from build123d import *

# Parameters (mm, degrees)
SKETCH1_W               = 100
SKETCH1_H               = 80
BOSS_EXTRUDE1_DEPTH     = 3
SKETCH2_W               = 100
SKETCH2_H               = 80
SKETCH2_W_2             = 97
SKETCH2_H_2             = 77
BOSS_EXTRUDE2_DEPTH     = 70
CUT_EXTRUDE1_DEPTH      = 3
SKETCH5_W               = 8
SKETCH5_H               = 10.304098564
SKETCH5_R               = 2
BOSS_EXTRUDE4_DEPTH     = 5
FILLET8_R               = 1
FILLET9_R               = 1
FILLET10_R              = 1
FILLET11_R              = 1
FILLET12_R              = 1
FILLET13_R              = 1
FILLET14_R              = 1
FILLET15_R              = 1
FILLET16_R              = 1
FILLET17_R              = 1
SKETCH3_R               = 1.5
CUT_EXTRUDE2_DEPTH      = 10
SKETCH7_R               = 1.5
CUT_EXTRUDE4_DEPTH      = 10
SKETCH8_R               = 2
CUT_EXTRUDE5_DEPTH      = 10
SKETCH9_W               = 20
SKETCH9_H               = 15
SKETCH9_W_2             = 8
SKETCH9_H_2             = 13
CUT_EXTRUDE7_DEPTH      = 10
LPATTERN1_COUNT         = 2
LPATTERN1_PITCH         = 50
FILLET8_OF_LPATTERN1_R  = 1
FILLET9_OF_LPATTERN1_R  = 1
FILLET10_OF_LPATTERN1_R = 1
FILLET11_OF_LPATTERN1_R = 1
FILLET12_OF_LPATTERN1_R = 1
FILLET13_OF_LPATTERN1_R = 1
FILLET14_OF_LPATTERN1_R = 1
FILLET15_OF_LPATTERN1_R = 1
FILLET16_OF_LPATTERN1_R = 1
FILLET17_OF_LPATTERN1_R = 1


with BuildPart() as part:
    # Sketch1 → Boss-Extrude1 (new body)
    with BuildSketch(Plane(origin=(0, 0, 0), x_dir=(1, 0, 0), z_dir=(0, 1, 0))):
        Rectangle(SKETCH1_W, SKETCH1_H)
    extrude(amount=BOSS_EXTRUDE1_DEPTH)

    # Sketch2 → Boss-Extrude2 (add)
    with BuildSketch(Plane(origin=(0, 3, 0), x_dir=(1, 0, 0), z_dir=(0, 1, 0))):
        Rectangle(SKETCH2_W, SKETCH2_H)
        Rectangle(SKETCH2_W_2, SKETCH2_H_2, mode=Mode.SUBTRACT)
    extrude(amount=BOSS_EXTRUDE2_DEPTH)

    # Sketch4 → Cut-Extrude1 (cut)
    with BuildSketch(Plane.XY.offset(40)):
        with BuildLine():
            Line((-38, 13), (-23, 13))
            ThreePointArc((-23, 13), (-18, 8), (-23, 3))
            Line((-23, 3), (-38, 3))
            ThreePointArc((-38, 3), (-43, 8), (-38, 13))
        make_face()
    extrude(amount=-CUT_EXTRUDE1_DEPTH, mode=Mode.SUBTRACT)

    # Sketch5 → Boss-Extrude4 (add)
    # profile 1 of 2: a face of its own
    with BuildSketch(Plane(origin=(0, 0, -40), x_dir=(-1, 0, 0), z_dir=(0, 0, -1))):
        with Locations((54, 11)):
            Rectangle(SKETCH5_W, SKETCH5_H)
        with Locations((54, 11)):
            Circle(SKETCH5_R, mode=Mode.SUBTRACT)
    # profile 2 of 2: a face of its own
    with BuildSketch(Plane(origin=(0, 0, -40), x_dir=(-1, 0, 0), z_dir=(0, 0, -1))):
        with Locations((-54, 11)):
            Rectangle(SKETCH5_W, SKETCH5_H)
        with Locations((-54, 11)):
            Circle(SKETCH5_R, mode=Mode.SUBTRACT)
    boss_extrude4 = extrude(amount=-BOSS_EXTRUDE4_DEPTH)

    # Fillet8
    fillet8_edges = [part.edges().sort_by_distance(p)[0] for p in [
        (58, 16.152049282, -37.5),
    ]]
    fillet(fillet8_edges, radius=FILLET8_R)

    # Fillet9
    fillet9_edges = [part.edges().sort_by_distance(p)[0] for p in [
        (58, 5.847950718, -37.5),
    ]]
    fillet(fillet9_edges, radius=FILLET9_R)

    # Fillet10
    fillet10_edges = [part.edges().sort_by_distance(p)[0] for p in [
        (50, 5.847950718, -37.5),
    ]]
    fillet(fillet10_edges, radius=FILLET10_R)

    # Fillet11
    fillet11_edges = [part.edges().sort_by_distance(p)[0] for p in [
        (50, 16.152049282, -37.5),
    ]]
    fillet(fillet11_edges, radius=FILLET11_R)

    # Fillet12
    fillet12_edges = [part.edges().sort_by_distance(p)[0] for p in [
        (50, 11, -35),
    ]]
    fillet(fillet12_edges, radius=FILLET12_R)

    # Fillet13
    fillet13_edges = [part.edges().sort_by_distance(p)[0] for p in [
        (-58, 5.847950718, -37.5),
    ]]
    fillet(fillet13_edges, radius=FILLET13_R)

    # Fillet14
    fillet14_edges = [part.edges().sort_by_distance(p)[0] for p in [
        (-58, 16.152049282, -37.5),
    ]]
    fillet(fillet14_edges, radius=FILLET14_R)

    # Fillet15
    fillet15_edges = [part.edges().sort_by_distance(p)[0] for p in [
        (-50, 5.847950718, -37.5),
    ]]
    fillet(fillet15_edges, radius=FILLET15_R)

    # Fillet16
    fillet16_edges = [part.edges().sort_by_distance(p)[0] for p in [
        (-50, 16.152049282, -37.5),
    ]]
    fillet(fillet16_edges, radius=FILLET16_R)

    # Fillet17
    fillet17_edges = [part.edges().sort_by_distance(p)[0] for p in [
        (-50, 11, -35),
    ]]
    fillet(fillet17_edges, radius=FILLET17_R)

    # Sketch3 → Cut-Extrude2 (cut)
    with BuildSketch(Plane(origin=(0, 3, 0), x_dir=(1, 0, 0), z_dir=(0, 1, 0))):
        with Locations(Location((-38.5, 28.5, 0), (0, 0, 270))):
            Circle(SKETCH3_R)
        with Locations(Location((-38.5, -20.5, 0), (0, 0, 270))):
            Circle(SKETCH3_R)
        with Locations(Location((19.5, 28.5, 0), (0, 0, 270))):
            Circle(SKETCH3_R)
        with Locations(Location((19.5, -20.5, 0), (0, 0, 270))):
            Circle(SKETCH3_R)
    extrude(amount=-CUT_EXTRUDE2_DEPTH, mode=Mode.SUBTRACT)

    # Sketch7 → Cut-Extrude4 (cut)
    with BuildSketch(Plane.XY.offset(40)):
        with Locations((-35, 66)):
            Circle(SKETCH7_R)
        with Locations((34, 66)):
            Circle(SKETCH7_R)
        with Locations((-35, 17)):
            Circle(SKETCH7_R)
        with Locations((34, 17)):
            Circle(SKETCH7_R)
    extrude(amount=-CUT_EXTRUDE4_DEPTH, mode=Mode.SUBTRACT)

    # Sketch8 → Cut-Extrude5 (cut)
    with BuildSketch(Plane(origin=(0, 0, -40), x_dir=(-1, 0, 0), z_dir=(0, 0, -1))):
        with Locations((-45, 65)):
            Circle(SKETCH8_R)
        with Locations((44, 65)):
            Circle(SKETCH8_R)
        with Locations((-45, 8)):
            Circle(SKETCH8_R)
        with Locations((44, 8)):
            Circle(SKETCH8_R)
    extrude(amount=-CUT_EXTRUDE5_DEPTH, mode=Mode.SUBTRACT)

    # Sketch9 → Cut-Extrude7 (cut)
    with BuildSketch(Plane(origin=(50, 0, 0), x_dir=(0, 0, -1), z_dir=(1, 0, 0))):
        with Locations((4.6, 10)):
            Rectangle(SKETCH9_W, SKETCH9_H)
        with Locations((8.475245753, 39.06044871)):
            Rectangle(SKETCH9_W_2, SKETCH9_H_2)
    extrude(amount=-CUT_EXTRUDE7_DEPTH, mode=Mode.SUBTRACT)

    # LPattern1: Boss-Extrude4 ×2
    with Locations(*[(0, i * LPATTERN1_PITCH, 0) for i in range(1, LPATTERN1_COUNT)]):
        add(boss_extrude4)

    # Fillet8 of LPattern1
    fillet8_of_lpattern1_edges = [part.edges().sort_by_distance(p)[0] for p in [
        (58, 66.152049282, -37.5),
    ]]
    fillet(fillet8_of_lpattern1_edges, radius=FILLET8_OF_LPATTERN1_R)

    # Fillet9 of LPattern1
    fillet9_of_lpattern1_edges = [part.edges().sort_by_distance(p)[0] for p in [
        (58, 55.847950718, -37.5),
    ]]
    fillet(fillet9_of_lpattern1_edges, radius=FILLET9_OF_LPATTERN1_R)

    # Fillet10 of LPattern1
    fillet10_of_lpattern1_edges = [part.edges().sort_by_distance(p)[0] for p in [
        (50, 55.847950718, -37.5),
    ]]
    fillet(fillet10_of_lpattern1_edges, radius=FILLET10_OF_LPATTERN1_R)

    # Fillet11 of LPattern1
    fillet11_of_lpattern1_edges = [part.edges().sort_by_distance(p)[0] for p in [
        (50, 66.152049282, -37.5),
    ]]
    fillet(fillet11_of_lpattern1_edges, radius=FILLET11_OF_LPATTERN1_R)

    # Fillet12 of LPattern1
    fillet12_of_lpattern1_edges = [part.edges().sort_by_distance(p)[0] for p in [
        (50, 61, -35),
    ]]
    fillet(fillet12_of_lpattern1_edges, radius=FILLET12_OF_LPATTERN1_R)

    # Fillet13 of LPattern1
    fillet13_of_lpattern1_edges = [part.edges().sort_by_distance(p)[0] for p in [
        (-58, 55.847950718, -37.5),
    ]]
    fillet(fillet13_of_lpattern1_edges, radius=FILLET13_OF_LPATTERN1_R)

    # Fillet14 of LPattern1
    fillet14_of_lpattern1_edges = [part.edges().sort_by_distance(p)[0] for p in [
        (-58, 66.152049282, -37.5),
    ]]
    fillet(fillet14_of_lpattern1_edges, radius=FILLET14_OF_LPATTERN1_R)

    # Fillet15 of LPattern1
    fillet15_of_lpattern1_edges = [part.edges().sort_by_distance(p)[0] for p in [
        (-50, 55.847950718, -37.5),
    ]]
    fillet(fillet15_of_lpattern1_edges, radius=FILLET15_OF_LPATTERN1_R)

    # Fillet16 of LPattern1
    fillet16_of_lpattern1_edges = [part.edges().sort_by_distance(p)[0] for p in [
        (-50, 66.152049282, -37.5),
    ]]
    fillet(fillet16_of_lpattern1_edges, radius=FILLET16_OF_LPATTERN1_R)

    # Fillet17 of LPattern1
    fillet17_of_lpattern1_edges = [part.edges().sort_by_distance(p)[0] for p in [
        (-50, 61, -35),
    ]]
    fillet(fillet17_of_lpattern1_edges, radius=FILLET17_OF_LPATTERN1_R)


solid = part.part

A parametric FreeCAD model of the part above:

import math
import FreeCAD as App
import Part
import Sketcher
from FreeCAD import Vector


def edges_at(feature, points):
    """Names of the edges that pass closest to the given points."""
    edges = feature.Shape.Edges
    near = lambda p: min(range(len(edges)), key=lambda i: edges[i].distToShape(Part.Vertex(*p))[0])
    return sorted({f"Edge{near(p) + 1}" for p in points})


def add_polygon(sketch, points):
    """Adds a closed chain of lines whose ends are joined by coincident constraints."""
    first, n = sketch.GeometryCount, len(points)
    for a, b in zip(points, points[1:] + points[:1]):
        sketch.addGeometry(Part.LineSegment(App.Vector(*a, 0), App.Vector(*b, 0)), False)
    for i in range(n):
        sketch.addConstraint(Sketcher.Constraint("Coincident", first + i, 2, first + (i + 1) % n, 1))

doc = App.newDocument("Part")
body = doc.addObject("PartDesign::Body", "Body")

sketch1 = body.newObject("Sketcher::SketchObject", "Sketch")
sketch1.AttachmentSupport = (doc.getObject("XZ_Plane"), [""])
sketch1.MapMode = "FlatFace"
add_polygon(sketch1, [(-50, -40), (-50, 40), (50, 40), (50, -40)])
sketch1.addConstraint(Sketcher.Constraint("Vertical", 0))
sketch1.addConstraint(Sketcher.Constraint("Horizontal", 1))
sketch1.addConstraint(Sketcher.Constraint("Vertical", 2))
sketch1.addConstraint(Sketcher.Constraint("Horizontal", 3))
sketch1.addConstraint(Sketcher.Constraint("Symmetric", 0, 2, 2, 2, -1, 1))
sketch1.addConstraint(Sketcher.Constraint("DistanceX", 1, 1, 1, 2, 100.0))
sketch1.addConstraint(Sketcher.Constraint("DistanceY", 0, 1, 0, 2, 80.0))
pad1 = body.newObject("PartDesign::Pad", "Pad")
pad1.Profile = sketch1
pad1.Length = 3
pad1.Reversed = True

sketch2 = body.newObject("Sketcher::SketchObject", "Sketch001")
sketch2.AttachmentSupport = (doc.getObject("XZ_Plane"), [""])
sketch2.MapMode = "FlatFace"
sketch2.AttachmentOffset = App.Placement(Vector(0, 0, -3), App.Rotation())
add_polygon(sketch2, [(-50, -40), (-50, 40), (50, 40), (50, -40)])
add_polygon(sketch2, [(48, 38), (-48, 38), (-48, -38), (48, -38)])
sketch2.addConstraint(Sketcher.Constraint("Vertical", 0))
sketch2.addConstraint(Sketcher.Constraint("Horizontal", 1))
sketch2.addConstraint(Sketcher.Constraint("Vertical", 2))
sketch2.addConstraint(Sketcher.Constraint("Horizontal", 3))
sketch2.addConstraint(Sketcher.Constraint("Horizontal", 4))
sketch2.addConstraint(Sketcher.Constraint("Vertical", 5))
sketch2.addConstraint(Sketcher.Constraint("Horizontal", 6))
sketch2.addConstraint(Sketcher.Constraint("Vertical", 7))
sketch2.addConstraint(Sketcher.Constraint("Symmetric", 0, 2, 2, 2, -1, 1))
sketch2.addConstraint(Sketcher.Constraint("Symmetric", 4, 2, 6, 2, -1, 1))
sketch2.addConstraint(Sketcher.Constraint("DistanceX", 1, 1, 1, 2, 100.0))
sketch2.addConstraint(Sketcher.Constraint("DistanceX", 4, 2, 4, 1, 97.0))
sketch2.addConstraint(Sketcher.Constraint("DistanceY", 0, 1, 0, 2, 80.0))
sketch2.addConstraint(Sketcher.Constraint("DistanceY", 5, 2, 5, 1, 77.0))
pad2 = body.newObject("PartDesign::Pad", "Pad001")
pad2.Profile = sketch2
pad2.Length = 70
pad2.Reversed = True

sketch3 = body.newObject("Sketcher::SketchObject", "Sketch002")
sketch3.AttachmentSupport = (doc.getObject("XY_Plane"), [""])
sketch3.MapMode = "FlatFace"
sketch3.AttachmentOffset = App.Placement(Vector(0, 0, 40), App.Rotation())
sketch3.addGeometry(Part.LineSegment(Vector(-23, 13, 0), Vector(-38, 13, 0)), False)
sketch3.addGeometry(Part.ArcOfCircle(Part.Circle(Vector(-38, 8, 0), Vector(0, 0, 1), 5), math.radians(90), math.radians(270)), False)
sketch3.addGeometry(Part.LineSegment(Vector(-38, 3, 0), Vector(-23, 3, 0)), False)
sketch3.addGeometry(Part.ArcOfCircle(Part.Circle(Vector(-23, 8, 0), Vector(0, 0, 1), 5), math.radians(-90), math.radians(90)), False)
sketch3.addConstraint(Sketcher.Constraint("Tangent", 0, 2, 1, 1))
sketch3.addConstraint(Sketcher.Constraint("Tangent", 1, 2, 2, 1))
sketch3.addConstraint(Sketcher.Constraint("Tangent", 2, 2, 3, 1))
sketch3.addConstraint(Sketcher.Constraint("Tangent", 3, 2, 0, 1))
sketch3.addConstraint(Sketcher.Constraint("Horizontal", 0))
sketch3.addConstraint(Sketcher.Constraint("Horizontal", 2))
sketch3.addConstraint(Sketcher.Constraint("Radius", 1, 5.0))
sketch3.addConstraint(Sketcher.Constraint("DistanceX", 0, 2, 0, 1, 15.0))
sketch3.addConstraint(Sketcher.Constraint("DistanceX", 1, 3, -1, 1, 38.0))
sketch3.addConstraint(Sketcher.Constraint("DistanceY", -1, 1, 1, 3, 8.0))
pocket1 = body.newObject("PartDesign::Pocket", "Pocket")
pocket1.Profile = sketch3
pocket1.Length = 3

sketch4 = body.newObject("Sketcher::SketchObject", "Sketch003")
sketch4.AttachmentSupport = (doc.getObject("XY_Plane"), [""])
sketch4.MapMode = "FlatFace"
sketch4.AttachmentOffset = App.Placement(Vector(0, 0, -40), App.Rotation())
add_polygon(sketch4, [(-50, 16.2), (-50, 5.8), (-58, 5.8), (-58, 16.2)])
sketch4.addGeometry(Part.Circle(Vector(-54, 11, 0), Vector(0, 0, 1), 2), False)
add_polygon(sketch4, [(58, 16.2), (58, 5.8), (50, 5.8), (50, 16.2)])
sketch4.addGeometry(Part.Circle(Vector(54, 11, 0), Vector(0, 0, 1), 2), False)
sketch4.addConstraint(Sketcher.Constraint("Vertical", 0))
sketch4.addConstraint(Sketcher.Constraint("Horizontal", 1))
sketch4.addConstraint(Sketcher.Constraint("Vertical", 2))
sketch4.addConstraint(Sketcher.Constraint("Horizontal", 3))
sketch4.addConstraint(Sketcher.Constraint("Vertical", 5))
sketch4.addConstraint(Sketcher.Constraint("Horizontal", 6))
sketch4.addConstraint(Sketcher.Constraint("Vertical", 7))
sketch4.addConstraint(Sketcher.Constraint("Horizontal", 8))
sketch4.addConstraint(Sketcher.Constraint("Equal", 4, 9))
sketch4.addConstraint(Sketcher.Constraint("Symmetric", 4, 3, 9, 3, -2))
sketch4.addConstraint(Sketcher.Constraint("Symmetric", 1, 2, 5, 2, -2))
sketch4.addConstraint(Sketcher.Constraint("Symmetric", 3, 2, 7, 2, -2))
sketch4.addConstraint(Sketcher.Constraint("Diameter", 4, 4.0))
sketch4.addConstraint(Sketcher.Constraint("DistanceX", 1, 2, 1, 1, 8.0))
sketch4.addConstraint(Sketcher.Constraint("DistanceX", 4, 3, -1, 1, 54.0))
sketch4.addConstraint(Sketcher.Constraint("DistanceY", -1, 1, 4, 3, 11.0))
sketch4.addConstraint(Sketcher.Constraint("DistanceX", 0, 2, -1, 1, 50.0))
sketch4.addConstraint(Sketcher.Constraint("DistanceY", 0, 2, 0, 1, 10.304099))
sketch4.addConstraint(Sketcher.Constraint("DistanceY", -1, 1, 0, 2, 5.847951))
pad3 = body.newObject("PartDesign::Pad", "Pad002")
pad3.Profile = sketch4
pad3.Length = 5
doc.recompute()

fillet = body.newObject("PartDesign::Fillet", "Fillet")
fillet.Base = (pad3, edges_at(pad3, [(58, 16.152, -37.5)]))
fillet.Radius = 1
doc.recompute()

fillet2 = body.newObject("PartDesign::Fillet", "Fillet001")
fillet2.Base = (fillet, edges_at(fillet, [(58, 5.848, -37.5)]))
fillet2.Radius = 1
doc.recompute()

fillet3 = body.newObject("PartDesign::Fillet", "Fillet002")
fillet3.Base = (fillet2, edges_at(fillet2, [(50, 5.848, -37.5)]))
fillet3.Radius = 1
doc.recompute()

fillet4 = body.newObject("PartDesign::Fillet", "Fillet003")
fillet4.Base = (fillet3, edges_at(fillet3, [(50, 16.152, -37.5)]))
fillet4.Radius = 1
doc.recompute()

fillet5 = body.newObject("PartDesign::Fillet", "Fillet004")
fillet5.Base = (fillet4, edges_at(fillet4, [(50, 11, -35)]))
fillet5.Radius = 1
doc.recompute()

fillet6 = body.newObject("PartDesign::Fillet", "Fillet005")
fillet6.Base = (fillet5, edges_at(fillet5, [(-58, 5.848, -37.5)]))
fillet6.Radius = 1
doc.recompute()

fillet7 = body.newObject("PartDesign::Fillet", "Fillet006")
fillet7.Base = (fillet6, edges_at(fillet6, [(-58, 16.152, -37.5)]))
fillet7.Radius = 1
doc.recompute()

fillet8 = body.newObject("PartDesign::Fillet", "Fillet007")
fillet8.Base = (fillet7, edges_at(fillet7, [(-50, 5.848, -37.5)]))
fillet8.Radius = 1
doc.recompute()

fillet9 = body.newObject("PartDesign::Fillet", "Fillet008")
fillet9.Base = (fillet8, edges_at(fillet8, [(-50, 16.152, -37.5)]))
fillet9.Radius = 1
doc.recompute()

fillet10 = body.newObject("PartDesign::Fillet", "Fillet009")
fillet10.Base = (fillet9, edges_at(fillet9, [(-50, 11, -35)]))
fillet10.Radius = 1

sketch5 = body.newObject("Sketcher::SketchObject", "Sketch004")
sketch5.AttachmentSupport = (doc.getObject("XZ_Plane"), [""])
sketch5.MapMode = "FlatFace"
sketch5.AttachmentOffset = App.Placement(Vector(0, 0, -3), App.Rotation())
sketch5.addGeometry(Part.Circle(Vector(-38.5, -28.5, 0), Vector(0, 0, 1), 1.5), False)
sketch5.addGeometry(Part.Circle(Vector(-38.5, 20.5, 0), Vector(0, 0, 1), 1.5), False)
sketch5.addGeometry(Part.Circle(Vector(19.5, -28.5, 0), Vector(0, 0, 1), 1.5), False)
sketch5.addGeometry(Part.Circle(Vector(19.5, 20.5, 0), Vector(0, 0, 1), 1.5), False)
sketch5.addConstraint(Sketcher.Constraint("Equal", 0, 1))
sketch5.addConstraint(Sketcher.Constraint("Equal", 1, 2))
sketch5.addConstraint(Sketcher.Constraint("Equal", 2, 3))
sketch5.addConstraint(Sketcher.Constraint("Horizontal", 0, 3, 2, 3))
sketch5.addConstraint(Sketcher.Constraint("Horizontal", 1, 3, 3, 3))
sketch5.addConstraint(Sketcher.Constraint("Vertical", 0, 3, 1, 3))
sketch5.addConstraint(Sketcher.Constraint("Vertical", 2, 3, 3, 3))
sketch5.addConstraint(Sketcher.Constraint("Diameter", 0, 3.0))
sketch5.addConstraint(Sketcher.Constraint("DistanceY", 0, 3, 1, 3, 49.0))
sketch5.addConstraint(Sketcher.Constraint("DistanceX", 0, 3, 2, 3, 58.0))
sketch5.addConstraint(Sketcher.Constraint("DistanceX", 0, 3, -1, 1, 38.5))
sketch5.addConstraint(Sketcher.Constraint("DistanceY", 0, 3, -1, 1, 28.5))
pocket2 = body.newObject("PartDesign::Pocket", "Pocket001")
pocket2.Profile = sketch5
pocket2.Length = 10
pocket2.Reversed = True

sketch6 = body.newObject("Sketcher::SketchObject", "Sketch005")
sketch6.AttachmentSupport = (doc.getObject("XY_Plane"), [""])
sketch6.MapMode = "FlatFace"
sketch6.AttachmentOffset = App.Placement(Vector(0, 0, 40), App.Rotation())
sketch6.addGeometry(Part.Circle(Vector(-35, 66, 0), Vector(0, 0, 1), 1.5), False)
sketch6.addGeometry(Part.Circle(Vector(34, 66, 0), Vector(0, 0, 1), 1.5), False)
sketch6.addGeometry(Part.Circle(Vector(-35, 17, 0), Vector(0, 0, 1), 1.5), False)
sketch6.addGeometry(Part.Circle(Vector(34, 17, 0), Vector(0, 0, 1), 1.5), False)
sketch6.addConstraint(Sketcher.Constraint("Equal", 0, 1))
sketch6.addConstraint(Sketcher.Constraint("Equal", 1, 2))
sketch6.addConstraint(Sketcher.Constraint("Equal", 2, 3))
sketch6.addConstraint(Sketcher.Constraint("Horizontal", 0, 3, 1, 3))
sketch6.addConstraint(Sketcher.Constraint("Horizontal", 2, 3, 3, 3))
sketch6.addConstraint(Sketcher.Constraint("Vertical", 0, 3, 2, 3))
sketch6.addConstraint(Sketcher.Constraint("Vertical", 1, 3, 3, 3))
sketch6.addConstraint(Sketcher.Constraint("Diameter", 0, 3.0))
sketch6.addConstraint(Sketcher.Constraint("DistanceX", 0, 3, -1, 1, 35.0))
sketch6.addConstraint(Sketcher.Constraint("DistanceY", -1, 1, 0, 3, 66.0))
sketch6.addConstraint(Sketcher.Constraint("DistanceX", -1, 1, 1, 3, 34.0))
sketch6.addConstraint(Sketcher.Constraint("DistanceY", -1, 1, 2, 3, 17.0))
pocket3 = body.newObject("PartDesign::Pocket", "Pocket002")
pocket3.Profile = sketch6
pocket3.Length = 10

sketch7 = body.newObject("Sketcher::SketchObject", "Sketch006")
sketch7.AttachmentSupport = (doc.getObject("XY_Plane"), [""])
sketch7.MapMode = "FlatFace"
sketch7.AttachmentOffset = App.Placement(Vector(0, 0, -40), App.Rotation())
sketch7.addGeometry(Part.Circle(Vector(45, 65, 0), Vector(0, 0, 1), 2), False)
sketch7.addGeometry(Part.Circle(Vector(-44, 65, 0), Vector(0, 0, 1), 2), False)
sketch7.addGeometry(Part.Circle(Vector(45, 8, 0), Vector(0, 0, 1), 2), False)
sketch7.addGeometry(Part.Circle(Vector(-44, 8, 0), Vector(0, 0, 1), 2), False)
sketch7.addConstraint(Sketcher.Constraint("Equal", 0, 1))
sketch7.addConstraint(Sketcher.Constraint("Equal", 1, 2))
sketch7.addConstraint(Sketcher.Constraint("Equal", 2, 3))
sketch7.addConstraint(Sketcher.Constraint("Horizontal", 0, 3, 1, 3))
sketch7.addConstraint(Sketcher.Constraint("Horizontal", 2, 3, 3, 3))
sketch7.addConstraint(Sketcher.Constraint("Vertical", 0, 3, 2, 3))
sketch7.addConstraint(Sketcher.Constraint("Vertical", 1, 3, 3, 3))
sketch7.addConstraint(Sketcher.Constraint("Diameter", 0, 4.0))
sketch7.addConstraint(Sketcher.Constraint("DistanceX", -1, 1, 0, 3, 45.0))
sketch7.addConstraint(Sketcher.Constraint("DistanceY", -1, 1, 0, 3, 65.0))
sketch7.addConstraint(Sketcher.Constraint("DistanceX", 1, 3, -1, 1, 44.0))
sketch7.addConstraint(Sketcher.Constraint("DistanceY", -1, 1, 2, 3, 8.0))
pocket4 = body.newObject("PartDesign::Pocket", "Pocket003")
pocket4.Profile = sketch7
pocket4.Length = 10
pocket4.Reversed = True

sketch8 = body.newObject("Sketcher::SketchObject", "Sketch007")
sketch8.AttachmentSupport = (doc.getObject("YZ_Plane"), [""])
sketch8.MapMode = "FlatFace"
sketch8.AttachmentOffset = App.Placement(Vector(0, 0, 50), App.Rotation())
add_polygon(sketch8, [(18, 5), (2, 5), (2, -15), (18, -15)])
add_polygon(sketch8, [(46, -4), (33, -4), (33, -12), (46, -12)])
sketch8.addConstraint(Sketcher.Constraint("Horizontal", 0))
sketch8.addConstraint(Sketcher.Constraint("Vertical", 1))
sketch8.addConstraint(Sketcher.Constraint("Horizontal", 2))
sketch8.addConstraint(Sketcher.Constraint("Vertical", 3))
sketch8.addConstraint(Sketcher.Constraint("Horizontal", 4))
sketch8.addConstraint(Sketcher.Constraint("Vertical", 5))
sketch8.addConstraint(Sketcher.Constraint("Horizontal", 6))
sketch8.addConstraint(Sketcher.Constraint("Vertical", 7))
sketch8.addConstraint(Sketcher.Constraint("DistanceX", 0, 2, 0, 1, 15.0))
sketch8.addConstraint(Sketcher.Constraint("DistanceX", 4, 2, 4, 1, 13.0))
sketch8.addConstraint(Sketcher.Constraint("DistanceY", 1, 2, 1, 1, 20.0))
sketch8.addConstraint(Sketcher.Constraint("DistanceY", 5, 2, 5, 1, 8.0))
sketch8.addConstraint(Sketcher.Constraint("DistanceX", -1, 1, 0, 2, 2.5))
sketch8.addConstraint(Sketcher.Constraint("DistanceY", -1, 1, 0, 2, 5.4))
sketch8.addConstraint(Sketcher.Constraint("DistanceX", -1, 1, 4, 2, 32.560449))
sketch8.addConstraint(Sketcher.Constraint("DistanceY", 4, 2, -1, 1, 4.475246))
pocket5 = body.newObject("PartDesign::Pocket", "Pocket004")
pocket5.Profile = sketch8
pocket5.Length = 10
doc.recompute()

linearpattern = body.newObject("PartDesign::LinearPattern", "LinearPattern")
linearpattern.Originals = [pad3]
linearpattern.Direction = (doc.getObject("Y_Axis"), [""])
linearpattern.Mode = "offset"
linearpattern.Offset = 50
linearpattern.Occurrences = 2
body.Tip = linearpattern
doc.recompute()

fillet11 = body.newObject("PartDesign::Fillet", "Fillet010")
fillet11.Base = (linearpattern, edges_at(linearpattern, [(58, 66.152, -37.5)]))
fillet11.Radius = 1
doc.recompute()

fillet12 = body.newObject("PartDesign::Fillet", "Fillet011")
fillet12.Base = (fillet11, edges_at(fillet11, [(58, 55.848, -37.5)]))
fillet12.Radius = 1
doc.recompute()

fillet13 = body.newObject("PartDesign::Fillet", "Fillet012")
fillet13.Base = (fillet12, edges_at(fillet12, [(50, 55.848, -37.5)]))
fillet13.Radius = 1
doc.recompute()

fillet14 = body.newObject("PartDesign::Fillet", "Fillet013")
fillet14.Base = (fillet13, edges_at(fillet13, [(50, 66.152, -37.5)]))
fillet14.Radius = 1
doc.recompute()

fillet15 = body.newObject("PartDesign::Fillet", "Fillet014")
fillet15.Base = (fillet14, edges_at(fillet14, [(50, 61, -35)]))
fillet15.Radius = 1
doc.recompute()

fillet16 = body.newObject("PartDesign::Fillet", "Fillet015")
fillet16.Base = (fillet15, edges_at(fillet15, [(-58, 55.848, -37.5)]))
fillet16.Radius = 1
doc.recompute()

fillet17 = body.newObject("PartDesign::Fillet", "Fillet016")
fillet17.Base = (fillet16, edges_at(fillet16, [(-58, 66.152, -37.5)]))
fillet17.Radius = 1
doc.recompute()

fillet18 = body.newObject("PartDesign::Fillet", "Fillet017")
fillet18.Base = (fillet17, edges_at(fillet17, [(-50, 55.848, -37.5)]))
fillet18.Radius = 1
doc.recompute()

fillet19 = body.newObject("PartDesign::Fillet", "Fillet018")
fillet19.Base = (fillet18, edges_at(fillet18, [(-50, 66.152, -37.5)]))
fillet19.Radius = 1
doc.recompute()

fillet20 = body.newObject("PartDesign::Fillet", "Fillet019")
fillet20.Base = (fillet19, edges_at(fillet19, [(-50, 61, -35)]))
fillet20.Radius = 1

doc.recompute()
